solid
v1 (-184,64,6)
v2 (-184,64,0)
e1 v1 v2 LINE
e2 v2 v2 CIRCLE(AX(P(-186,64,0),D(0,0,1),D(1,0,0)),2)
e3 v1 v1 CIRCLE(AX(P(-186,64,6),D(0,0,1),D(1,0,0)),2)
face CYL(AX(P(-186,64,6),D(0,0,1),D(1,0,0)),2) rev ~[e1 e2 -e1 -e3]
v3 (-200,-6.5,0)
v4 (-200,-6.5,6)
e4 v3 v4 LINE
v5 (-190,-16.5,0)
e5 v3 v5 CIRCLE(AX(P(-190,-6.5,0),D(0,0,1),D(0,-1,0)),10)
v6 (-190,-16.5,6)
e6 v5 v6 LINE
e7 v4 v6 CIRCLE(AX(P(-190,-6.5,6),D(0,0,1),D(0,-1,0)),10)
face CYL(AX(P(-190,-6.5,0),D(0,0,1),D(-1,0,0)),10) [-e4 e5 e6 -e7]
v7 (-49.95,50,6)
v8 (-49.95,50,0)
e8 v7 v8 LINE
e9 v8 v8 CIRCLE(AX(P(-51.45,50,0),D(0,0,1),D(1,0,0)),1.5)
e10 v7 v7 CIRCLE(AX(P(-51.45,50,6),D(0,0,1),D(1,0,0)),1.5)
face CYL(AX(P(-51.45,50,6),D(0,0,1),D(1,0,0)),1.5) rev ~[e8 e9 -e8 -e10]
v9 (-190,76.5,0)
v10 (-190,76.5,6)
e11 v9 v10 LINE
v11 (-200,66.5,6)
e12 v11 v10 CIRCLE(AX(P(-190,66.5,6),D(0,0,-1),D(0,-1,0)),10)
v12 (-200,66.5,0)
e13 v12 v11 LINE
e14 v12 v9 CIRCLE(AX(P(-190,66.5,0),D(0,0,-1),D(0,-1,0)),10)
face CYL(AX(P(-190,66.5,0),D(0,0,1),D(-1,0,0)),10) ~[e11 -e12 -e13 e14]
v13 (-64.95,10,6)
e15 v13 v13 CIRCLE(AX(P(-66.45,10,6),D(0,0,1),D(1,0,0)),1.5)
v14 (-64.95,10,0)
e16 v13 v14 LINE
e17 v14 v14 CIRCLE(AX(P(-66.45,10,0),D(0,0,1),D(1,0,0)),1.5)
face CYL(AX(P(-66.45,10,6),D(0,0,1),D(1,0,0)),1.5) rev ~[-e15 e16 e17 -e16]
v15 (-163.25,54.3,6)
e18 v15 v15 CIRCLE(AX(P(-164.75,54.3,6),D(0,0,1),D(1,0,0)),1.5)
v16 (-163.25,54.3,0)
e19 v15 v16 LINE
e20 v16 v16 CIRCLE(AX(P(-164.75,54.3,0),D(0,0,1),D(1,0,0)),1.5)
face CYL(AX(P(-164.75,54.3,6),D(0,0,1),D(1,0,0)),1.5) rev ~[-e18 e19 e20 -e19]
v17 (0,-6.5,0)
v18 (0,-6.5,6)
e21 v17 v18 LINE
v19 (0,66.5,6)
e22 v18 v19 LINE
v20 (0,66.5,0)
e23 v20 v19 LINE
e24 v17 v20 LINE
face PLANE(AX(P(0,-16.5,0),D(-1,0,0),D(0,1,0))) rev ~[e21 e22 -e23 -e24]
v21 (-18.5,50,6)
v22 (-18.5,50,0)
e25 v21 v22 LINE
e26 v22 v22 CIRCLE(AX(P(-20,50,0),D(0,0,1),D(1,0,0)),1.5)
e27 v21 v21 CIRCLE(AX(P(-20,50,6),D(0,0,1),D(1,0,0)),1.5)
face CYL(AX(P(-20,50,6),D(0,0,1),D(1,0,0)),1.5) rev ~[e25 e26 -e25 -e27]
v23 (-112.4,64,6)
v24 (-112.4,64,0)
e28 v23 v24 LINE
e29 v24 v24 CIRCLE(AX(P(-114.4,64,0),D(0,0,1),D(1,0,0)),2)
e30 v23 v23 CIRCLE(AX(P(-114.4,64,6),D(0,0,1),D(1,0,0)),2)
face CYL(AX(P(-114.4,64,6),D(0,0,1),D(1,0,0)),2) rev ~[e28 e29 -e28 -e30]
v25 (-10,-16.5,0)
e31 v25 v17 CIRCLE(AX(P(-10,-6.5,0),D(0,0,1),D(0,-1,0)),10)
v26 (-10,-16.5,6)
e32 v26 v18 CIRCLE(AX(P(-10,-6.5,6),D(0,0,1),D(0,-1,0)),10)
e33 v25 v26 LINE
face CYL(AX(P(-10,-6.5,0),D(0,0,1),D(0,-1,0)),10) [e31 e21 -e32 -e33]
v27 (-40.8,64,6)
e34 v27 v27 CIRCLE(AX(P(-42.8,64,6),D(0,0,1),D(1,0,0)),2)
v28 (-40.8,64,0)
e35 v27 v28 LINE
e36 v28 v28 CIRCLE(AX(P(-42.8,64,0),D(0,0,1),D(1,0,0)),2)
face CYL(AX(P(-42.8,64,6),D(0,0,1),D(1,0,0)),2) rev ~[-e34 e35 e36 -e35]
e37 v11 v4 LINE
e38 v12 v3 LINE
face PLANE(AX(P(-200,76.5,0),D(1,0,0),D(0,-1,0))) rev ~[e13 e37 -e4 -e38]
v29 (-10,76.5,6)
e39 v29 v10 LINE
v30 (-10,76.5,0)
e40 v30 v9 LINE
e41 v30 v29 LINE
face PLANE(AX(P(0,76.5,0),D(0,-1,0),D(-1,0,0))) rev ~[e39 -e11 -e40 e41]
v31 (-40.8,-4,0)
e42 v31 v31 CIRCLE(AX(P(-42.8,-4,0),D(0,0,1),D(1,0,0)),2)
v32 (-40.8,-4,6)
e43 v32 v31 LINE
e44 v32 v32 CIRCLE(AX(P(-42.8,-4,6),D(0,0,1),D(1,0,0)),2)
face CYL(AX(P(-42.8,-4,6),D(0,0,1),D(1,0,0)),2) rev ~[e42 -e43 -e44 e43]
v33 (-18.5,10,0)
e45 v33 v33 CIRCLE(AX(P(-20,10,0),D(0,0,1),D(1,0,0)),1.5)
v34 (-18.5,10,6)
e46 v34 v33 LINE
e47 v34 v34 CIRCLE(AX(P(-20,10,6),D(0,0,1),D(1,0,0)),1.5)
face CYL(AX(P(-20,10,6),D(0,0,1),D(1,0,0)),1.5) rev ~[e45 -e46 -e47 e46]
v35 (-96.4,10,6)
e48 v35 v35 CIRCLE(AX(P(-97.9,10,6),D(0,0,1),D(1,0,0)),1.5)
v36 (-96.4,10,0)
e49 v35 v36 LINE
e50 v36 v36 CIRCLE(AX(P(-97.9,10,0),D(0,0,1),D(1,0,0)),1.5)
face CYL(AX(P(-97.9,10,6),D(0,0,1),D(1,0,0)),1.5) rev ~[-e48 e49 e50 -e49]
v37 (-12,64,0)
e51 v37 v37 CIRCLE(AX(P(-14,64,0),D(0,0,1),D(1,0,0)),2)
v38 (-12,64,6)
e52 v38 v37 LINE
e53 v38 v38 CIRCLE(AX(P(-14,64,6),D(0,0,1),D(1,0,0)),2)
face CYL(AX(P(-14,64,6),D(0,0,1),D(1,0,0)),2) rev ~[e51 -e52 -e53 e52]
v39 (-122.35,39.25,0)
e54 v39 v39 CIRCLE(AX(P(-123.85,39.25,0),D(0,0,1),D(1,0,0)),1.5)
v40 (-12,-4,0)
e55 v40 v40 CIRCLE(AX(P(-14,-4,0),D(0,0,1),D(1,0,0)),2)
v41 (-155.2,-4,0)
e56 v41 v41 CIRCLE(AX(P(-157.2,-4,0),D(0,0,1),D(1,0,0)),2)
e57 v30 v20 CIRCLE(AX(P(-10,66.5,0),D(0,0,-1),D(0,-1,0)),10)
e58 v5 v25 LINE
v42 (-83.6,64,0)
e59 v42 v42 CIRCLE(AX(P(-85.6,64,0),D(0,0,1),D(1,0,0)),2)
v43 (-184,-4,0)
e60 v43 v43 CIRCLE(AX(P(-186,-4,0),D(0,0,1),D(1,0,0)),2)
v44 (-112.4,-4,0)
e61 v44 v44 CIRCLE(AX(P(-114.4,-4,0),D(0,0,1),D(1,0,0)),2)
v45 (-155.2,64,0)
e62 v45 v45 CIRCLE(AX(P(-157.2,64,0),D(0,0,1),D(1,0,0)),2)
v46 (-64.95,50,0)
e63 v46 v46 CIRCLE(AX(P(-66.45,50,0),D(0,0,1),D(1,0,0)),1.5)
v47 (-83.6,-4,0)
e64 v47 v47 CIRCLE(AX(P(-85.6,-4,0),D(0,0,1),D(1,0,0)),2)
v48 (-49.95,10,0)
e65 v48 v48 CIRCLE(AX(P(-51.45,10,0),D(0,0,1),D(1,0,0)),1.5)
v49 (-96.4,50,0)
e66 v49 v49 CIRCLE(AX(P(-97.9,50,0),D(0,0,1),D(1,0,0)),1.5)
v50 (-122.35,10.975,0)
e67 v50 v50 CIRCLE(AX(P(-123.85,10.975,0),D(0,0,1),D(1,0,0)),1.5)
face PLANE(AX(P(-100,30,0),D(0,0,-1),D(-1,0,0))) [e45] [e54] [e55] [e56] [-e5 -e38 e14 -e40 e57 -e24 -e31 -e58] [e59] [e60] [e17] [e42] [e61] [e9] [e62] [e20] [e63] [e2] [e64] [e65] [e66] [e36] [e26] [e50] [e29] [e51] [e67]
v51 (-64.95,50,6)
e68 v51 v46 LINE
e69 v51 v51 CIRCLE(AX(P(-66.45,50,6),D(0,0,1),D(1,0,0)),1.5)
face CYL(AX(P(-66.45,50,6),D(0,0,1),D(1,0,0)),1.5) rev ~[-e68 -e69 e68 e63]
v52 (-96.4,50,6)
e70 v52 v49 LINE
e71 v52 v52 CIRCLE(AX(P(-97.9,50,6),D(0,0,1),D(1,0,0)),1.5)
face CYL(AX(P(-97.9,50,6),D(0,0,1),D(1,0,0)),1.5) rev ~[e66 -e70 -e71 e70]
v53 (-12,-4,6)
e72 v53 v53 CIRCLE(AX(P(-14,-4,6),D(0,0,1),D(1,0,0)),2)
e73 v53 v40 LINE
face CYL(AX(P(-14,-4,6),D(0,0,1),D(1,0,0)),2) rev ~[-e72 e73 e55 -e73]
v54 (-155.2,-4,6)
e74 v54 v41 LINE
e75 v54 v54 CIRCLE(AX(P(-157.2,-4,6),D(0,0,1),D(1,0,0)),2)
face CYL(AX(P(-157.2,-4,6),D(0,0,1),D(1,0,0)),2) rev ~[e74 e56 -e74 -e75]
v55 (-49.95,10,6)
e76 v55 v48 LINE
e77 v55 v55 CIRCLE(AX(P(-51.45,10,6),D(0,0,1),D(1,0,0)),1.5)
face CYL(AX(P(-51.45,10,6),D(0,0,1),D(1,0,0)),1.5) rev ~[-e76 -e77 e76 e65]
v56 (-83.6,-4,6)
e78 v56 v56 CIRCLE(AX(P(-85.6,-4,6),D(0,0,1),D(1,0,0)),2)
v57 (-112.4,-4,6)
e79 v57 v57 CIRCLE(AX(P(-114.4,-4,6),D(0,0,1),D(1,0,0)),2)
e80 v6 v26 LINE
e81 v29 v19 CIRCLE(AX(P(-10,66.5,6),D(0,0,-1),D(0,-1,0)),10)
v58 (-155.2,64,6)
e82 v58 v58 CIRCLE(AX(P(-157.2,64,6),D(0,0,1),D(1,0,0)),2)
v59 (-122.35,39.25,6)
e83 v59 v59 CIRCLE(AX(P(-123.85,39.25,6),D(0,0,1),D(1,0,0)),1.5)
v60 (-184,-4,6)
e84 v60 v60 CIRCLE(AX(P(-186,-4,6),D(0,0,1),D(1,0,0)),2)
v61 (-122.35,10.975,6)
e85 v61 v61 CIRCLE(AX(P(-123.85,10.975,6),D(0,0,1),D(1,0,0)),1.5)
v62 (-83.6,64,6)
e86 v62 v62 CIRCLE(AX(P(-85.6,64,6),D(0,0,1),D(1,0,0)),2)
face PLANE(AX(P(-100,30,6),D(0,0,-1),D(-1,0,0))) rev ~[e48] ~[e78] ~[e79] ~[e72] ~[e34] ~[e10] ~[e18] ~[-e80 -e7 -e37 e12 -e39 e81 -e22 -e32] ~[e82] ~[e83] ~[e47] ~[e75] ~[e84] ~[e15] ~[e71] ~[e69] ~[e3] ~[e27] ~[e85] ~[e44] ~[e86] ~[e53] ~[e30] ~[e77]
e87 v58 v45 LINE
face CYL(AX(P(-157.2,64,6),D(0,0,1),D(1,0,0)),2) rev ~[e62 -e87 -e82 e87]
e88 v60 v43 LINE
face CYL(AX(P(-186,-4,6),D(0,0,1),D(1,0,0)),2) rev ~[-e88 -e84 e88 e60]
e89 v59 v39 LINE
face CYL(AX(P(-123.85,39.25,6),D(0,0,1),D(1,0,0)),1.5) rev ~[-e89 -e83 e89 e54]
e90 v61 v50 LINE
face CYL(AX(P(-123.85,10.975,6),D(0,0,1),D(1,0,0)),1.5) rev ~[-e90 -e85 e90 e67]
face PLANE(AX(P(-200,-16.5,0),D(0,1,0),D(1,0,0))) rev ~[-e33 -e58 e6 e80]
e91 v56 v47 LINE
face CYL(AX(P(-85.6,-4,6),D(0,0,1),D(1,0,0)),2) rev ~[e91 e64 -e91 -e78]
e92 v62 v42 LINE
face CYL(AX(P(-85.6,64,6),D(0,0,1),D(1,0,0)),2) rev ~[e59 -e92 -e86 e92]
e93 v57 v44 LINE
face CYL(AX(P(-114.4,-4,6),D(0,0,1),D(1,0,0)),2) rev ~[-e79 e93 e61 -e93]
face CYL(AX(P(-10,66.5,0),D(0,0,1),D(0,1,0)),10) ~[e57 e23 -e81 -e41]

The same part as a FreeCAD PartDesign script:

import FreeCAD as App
import Part
import Sketcher

V = App.Vector


def edges_at(feature, points):
    """Names of the edges that pass closest to the given points."""
    edges = feature.Shape.Edges
    near = lambda p: min(range(len(edges)), key=lambda i: edges[i].distToShape(Part.Vertex(*p))[0])
    return sorted({f"Edge{near(p) + 1}" for p in points})


def add_polygon(sketch, points):
    """Adds a closed chain of lines whose ends are joined by coincident constraints."""
    first, n = sketch.GeometryCount, len(points)
    for a, b in zip(points, points[1:] + points[:1]):
        sketch.addGeometry(Part.LineSegment(App.Vector(*a, 0), App.Vector(*b, 0)), False)
    for i in range(n):
        sketch.addConstraint(Sketcher.Constraint("Coincident", first + i, 2, first + (i + 1) % n, 1))

doc = App.newDocument("Part")
body = doc.addObject("PartDesign::Body", "Body")

sketch1 = body.newObject("Sketcher::SketchObject", "Sketch")
sketch1.AttachmentSupport = (doc.getObject("XY_Plane"), [""])
sketch1.MapMode = "FlatFace"
add_polygon(sketch1, [(-200, 76), (-200, -16), (0, -16), (0, 76)])
sketch1.addConstraint(Sketcher.Constraint("Vertical", 0))
sketch1.addConstraint(Sketcher.Constraint("Horizontal", 1))
sketch1.addConstraint(Sketcher.Constraint("Vertical", 2))
sketch1.addConstraint(Sketcher.Constraint("Horizontal", 3))
sketch1.addConstraint(Sketcher.Constraint("PointOnObject", 1, 2, -2))
sketch1.addConstraint(Sketcher.Constraint("DistanceX", 1, 1, 1, 2, 200.0))
sketch1.addConstraint(Sketcher.Constraint("DistanceY", 0, 2, 0, 1, 93.0))
sketch1.addConstraint(Sketcher.Constraint("DistanceY", 0, 2, -1, 1, 16.5))
pad1 = body.newObject("PartDesign::Pad", "Pad")
pad1.Profile = sketch1
pad1.Length = 6

sketch2 = body.newObject("Sketcher::SketchObject", "Sketch001")
sketch2.AttachmentSupport = (doc.getObject("XY_Plane"), [""])
sketch2.MapMode = "FlatFace"
sketch2.AttachmentOffset = App.Placement(V(0, 0, 6), App.Rotation())
sketch2.addGeometry(Part.Circle(V(-164.8, 54.3, 0), V(0, 0, 1), 1.5), False)
sketch2.addGeometry(Part.Circle(V(-123.8, 39.2, 0), V(0, 0, 1), 1.5), False)
sketch2.addGeometry(Part.Circle(V(-123.8, 11, 0), V(0, 0, 1), 1.5), False)
sketch2.addGeometry(Part.Circle(V(-97.9, 50, 0), V(0, 0, 1), 1.5), False)
sketch2.addGeometry(Part.Circle(V(-66.5, 50, 0), V(0, 0, 1), 1.5), False)
sketch2.addGeometry(Part.Circle(V(-51.5, 50, 0), V(0, 0, 1), 1.5), False)
sketch2.addGeometry(Part.Circle(V(-20, 50, 0), V(0, 0, 1), 1.5), False)
sketch2.addGeometry(Part.Circle(V(-20, 10, 0), V(0, 0, 1), 1.5), False)
sketch2.addGeometry(Part.Circle(V(-51.5, 10, 0), V(0, 0, 1), 1.5), False)
sketch2.addGeometry(Part.Circle(V(-66.5, 10, 0), V(0, 0, 1), 1.5), False)
sketch2.addGeometry(Part.Circle(V(-97.9, 10, 0), V(0, 0, 1), 1.5), False)
sketch2.addConstraint(Sketcher.Constraint("Equal", 0, 1))
sketch2.addConstraint(Sketcher.Constraint("Equal", 1, 2))
sketch2.addConstraint(Sketcher.Constraint("Equal", 2, 3))
sketch2.addConstraint(Sketcher.Constraint("Equal", 3, 4))
sketch2.addConstraint(Sketcher.Constraint("Equal", 4, 5))
sketch2.addConstraint(Sketcher.Constraint("Equal", 5, 6))
sketch2.addConstraint(Sketcher.Constraint("Equal", 6, 7))
sketch2.addConstraint(Sketcher.Constraint("Equal", 7, 8))
sketch2.addConstraint(Sketcher.Constraint("Equal", 8, 9))
sketch2.addConstraint(Sketcher.Constraint("Equal", 9, 10))
sketch2.addConstraint(Sketcher.Constraint("Horizontal", 3, 3, 4, 3))
sketch2.addConstraint(Sketcher.Constraint("Horizontal", 4, 3, 5, 3))
sketch2.addConstraint(Sketcher.Constraint("Horizontal", 5, 3, 6, 3))
sketch2.addConstraint(Sketcher.Constraint("Horizontal", 7, 3, 8, 3))
sketch2.addConstraint(Sketcher.Constraint("Horizontal", 8, 3, 9, 3))
sketch2.addConstraint(Sketcher.Constraint("Horizontal", 9, 3, 10, 3))
sketch2.addConstraint(Sketcher.Constraint("Vertical", 1, 3, 2, 3))
sketch2.addConstraint(Sketcher.Constraint("Vertical", 6, 3, 7, 3))
sketch2.addConstraint(Sketcher.Constraint("Vertical", 5, 3, 8, 3))
sketch2.addConstraint(Sketcher.Constraint("Vertical", 4, 3, 9, 3))
sketch2.addConstraint(Sketcher.Constraint("Vertical", 3, 3, 10, 3))
sketch2.addConstraint(Sketcher.Constraint("Diameter", 0, 3.0))
sketch2.addConstraint(Sketcher.Constraint("DistanceY", -1, 1, 3, 3, 50.0))
sketch2.addConstraint(Sketcher.Constraint("DistanceX", 6, 3, -1, 1, 20.0))
sketch2.addConstraint(Sketcher.Constraint("DistanceY", -1, 1, 7, 3, 10.0))
sketch2.addConstraint(Sketcher.Constraint("DistanceX", 4, 3, 5, 3, 15.0))
sketch2.addConstraint(Sketcher.Constraint("DistanceY", -1, 1, 0, 3, 54.3))
sketch2.addConstraint(Sketcher.Constraint("DistanceX", 3, 3, -1, 1, 97.9))
sketch2.addConstraint(Sketcher.Constraint("DistanceX", 0, 3, 1, 3, 40.9))
sketch2.addConstraint(Sketcher.Constraint("DistanceX", 1, 3, 4, 3, 57.4))
sketch2.addConstraint(Sketcher.Constraint("DistanceX", 0, 3, -1, 1, 164.75))
sketch2.addConstraint(Sketcher.Constraint("DistanceY", -1, 1, 1, 3, 39.25))
sketch2.addConstraint(Sketcher.Constraint("DistanceY", -1, 1, 2, 3, 10.975))
pocket1 = body.newObject("PartDesign::Pocket", "Pocket")
pocket1.Profile = sketch2
pocket1.Length = 6

sketch3 = body.newObject("Sketcher::SketchObject", "Sketch002")
sketch3.AttachmentSupport = (doc.getObject("XY_Plane"), [""])
sketch3.MapMode = "FlatFace"
sketch3.AttachmentOffset = App.Placement(V(0, 0, 6), App.Rotation())
sketch3.addGeometry(Part.Circle(V(-14, 64, 0), V(0, 0, 1), 2), False)
sketch3.addConstraint(Sketcher.Constraint("Diameter", 0, 4.0))
sketch3.addConstraint(Sketcher.Constraint("DistanceX", 0, 3, -1, 1, 14.0))
sketch3.addConstraint(Sketcher.Constraint("DistanceY", -1, 1, 0, 3, 64.0))
pocket2 = body.newObject("PartDesign::Pocket", "Pocket001")
pocket2.Profile = sketch3
pocket2.Type = "UpToFirst"

sketch4 = body.newObject("Sketcher::SketchObject", "Sketch003")
sketch4.AttachmentSupport = (doc.getObject("XY_Plane"), [""])
sketch4.MapMode = "FlatFace"
sketch4.AttachmentOffset = App.Placement(V(0, 0, 6), App.Rotation())
sketch4.addGeometry(Part.Circle(V(-42.8, 64, 0), V(0, 0, 1), 2), False)
sketch4.addConstraint(Sketcher.Constraint("Diameter", 0, 4.0))
sketch4.addConstraint(Sketcher.Constraint("DistanceY", -1, 1, 0, 3, 64.0))
sketch4.addConstraint(Sketcher.Constraint("DistanceX", 0, 3, -1, 1, 42.8))
pocket3 = body.newObject("PartDesign::Pocket", "Pocket002")
pocket3.Profile = sketch4
pocket3.Type = "UpToFirst"

sketch5 = body.newObject("Sketcher::SketchObject", "Sketch004")
sketch5.AttachmentSupport = (doc.getObject("XY_Plane"), [""])
sketch5.MapMode = "FlatFace"
sketch5.AttachmentOffset = App.Placement(V(0, 0, 6), App.Rotation())
sketch5.addGeometry(Part.Circle(V(-85.6, 64, 0), V(0, 0, 1), 2), False)
sketch5.addConstraint(Sketcher.Constraint("Diameter", 0, 4.0))
sketch5.addConstraint(Sketcher.Constraint("DistanceY", -1, 1, 0, 3, 64.0))
sketch5.addConstraint(Sketcher.Constraint("DistanceX", 0, 3, -1, 1, 85.6))
pocket4 = body.newObject("PartDesign::Pocket", "Pocket003")
pocket4.Profile = sketch5
pocket4.Type = "UpToFirst"

sketch6 = body.newObject("Sketcher::SketchObject", "Sketch005")
sketch6.AttachmentSupport = (doc.getObject("XY_Plane"), [""])
sketch6.MapMode = "FlatFace"
sketch6.AttachmentOffset = App.Placement(V(0, 0, 6), App.Rotation())
sketch6.addGeometry(Part.Circle(V(-114.4, 64, 0), V(0, 0, 1), 2), False)
sketch6.addConstraint(Sketcher.Constraint("Diameter", 0, 4.0))
sketch6.addConstraint(Sketcher.Constraint("DistanceY", -1, 1, 0, 3, 64.0))
sketch6.addConstraint(Sketcher.Constraint("DistanceX", 0, 3, -1, 1, 114.4))
pocket5 = body.newObject("PartDesign::Pocket", "Pocket004")
pocket5.Profile = sketch6
pocket5.Type = "UpToFirst"

sketch7 = body.newObject("Sketcher::SketchObject", "Sketch006")
sketch7.AttachmentSupport = (doc.getObject("XY_Plane"), [""])
sketch7.MapMode = "FlatFace"
sketch7.AttachmentOffset = App.Placement(V(0, 0, 6), App.Rotation())
sketch7.addGeometry(Part.Circle(V(-157.2, 64, 0), V(0, 0, 1), 2), False)
sketch7.addConstraint(Sketcher.Constraint("Diameter", 0, 4.0))
sketch7.addConstraint(Sketcher.Constraint("DistanceY", -1, 1, 0, 3, 64.0))
sketch7.addConstraint(Sketcher.Constraint("DistanceX", 0, 3, -1, 1, 157.2))
pocket6 = body.newObject("PartDesign::Pocket", "Pocket005")
pocket6.Profile = sketch7
pocket6.Type = "UpToFirst"

sketch8 = body.newObject("Sketcher::SketchObject", "Sketch007")
sketch8.AttachmentSupport = (doc.getObject("XY_Plane"), [""])
sketch8.MapMode = "FlatFace"
sketch8.AttachmentOffset = App.Placement(V(0, 0, 6), App.Rotation())
sketch8.addGeometry(Part.Circle(V(-186, 64, 0), V(0, 0, 1), 2), False)
sketch8.addConstraint(Sketcher.Constraint("Diameter", 0, 4.0))
sketch8.addConstraint(Sketcher.Constraint("DistanceX", 0, 3, -1, 1, 186.0))
sketch8.addConstraint(Sketcher.Constraint("DistanceY", -1, 1, 0, 3, 64.0))
pocket7 = body.newObject("PartDesign::Pocket", "Pocket006")
pocket7.Profile = sketch8
pocket7.Type = "UpToFirst"

sketch9 = body.newObject("Sketcher::SketchObject", "Sketch008")
sketch9.AttachmentSupport = (doc.getObject("XY_Plane"), [""])
sketch9.MapMode = "FlatFace"
sketch9.AttachmentOffset = App.Placement(V(0, 0, 6), App.Rotation())
sketch9.addGeometry(Part.Circle(V(-14, -4, 0), V(0, 0, 1), 2), False)
sketch9.addConstraint(Sketcher.Constraint("Diameter", 0, 4.0))
sketch9.addConstraint(Sketcher.Constraint("DistanceX", 0, 3, -1, 1, 14.0))
sketch9.addConstraint(Sketcher.Constraint("DistanceY", 0, 3, -1, 1, 4.0))
pocket8 = body.newObject("PartDesign::Pocket", "Pocket007")
pocket8.Profile = sketch9
pocket8.Type = "UpToFirst"

sketch10 = body.newObject("Sketcher::SketchObject", "Sketch009")
sketch10.AttachmentSupport = (doc.getObject("XY_Plane"), [""])
sketch10.MapMode = "FlatFace"
sketch10.AttachmentOffset = App.Placement(V(0, 0, 6), App.Rotation())
sketch10.addGeometry(Part.Circle(V(-42.8, -4, 0), V(0, 0, 1), 2), False)
sketch10.addConstraint(Sketcher.Constraint("Diameter", 0, 4.0))
sketch10.addConstraint(Sketcher.Constraint("DistanceY", 0, 3, -1, 1, 4.0))
sketch10.addConstraint(Sketcher.Constraint("DistanceX", 0, 3, -1, 1, 42.8))
pocket9 = body.newObject("PartDesign::Pocket", "Pocket008")
pocket9.Profile = sketch10
pocket9.Type = "UpToFirst"

sketch11 = body.newObject("Sketcher::SketchObject", "Sketch010")
sketch11.AttachmentSupport = (doc.getObject("XY_Plane"), [""])
sketch11.MapMode = "FlatFace"
sketch11.AttachmentOffset = App.Placement(V(0, 0, 6), App.Rotation())
sketch11.addGeometry(Part.Circle(V(-85.6, -4, 0), V(0, 0, 1), 2), False)
sketch11.addConstraint(Sketcher.Constraint("Diameter", 0, 4.0))
sketch11.addConstraint(Sketcher.Constraint("DistanceY", 0, 3, -1, 1, 4.0))
sketch11.addConstraint(Sketcher.Constraint("DistanceX", 0, 3, -1, 1, 85.6))
pocket10 = body.newObject("PartDesign::Pocket", "Pocket009")
pocket10.Profile = sketch11
pocket10.Type = "UpToFirst"

sketch12 = body.newObject("Sketcher::SketchObject", "Sketch011")
sketch12.AttachmentSupport = (doc.getObject("XY_Plane"), [""])
sketch12.MapMode = "FlatFace"
sketch12.AttachmentOffset = App.Placement(V(0, 0, 6), App.Rotation())
sketch12.addGeometry(Part.Circle(V(-114.4, -4, 0), V(0, 0, 1), 2), False)
sketch12.addConstraint(Sketcher.Constraint("Diameter", 0, 4.0))
sketch12.addConstraint(Sketcher.Constraint("DistanceY", 0, 3, -1, 1, 4.0))
sketch12.addConstraint(Sketcher.Constraint("DistanceX", 0, 3, -1, 1, 114.4))
pocket11 = body.newObject("PartDesign::Pocket", "Pocket010")
pocket11.Profile = sketch12
pocket11.Type = "UpToFirst"

sketch13 = body.newObject("Sketcher::SketchObject", "Sketch012")
sketch13.AttachmentSupport = (doc.getObject("XY_Plane"), [""])
sketch13.MapMode = "FlatFace"
sketch13.AttachmentOffset = App.Placement(V(0, 0, 6), App.Rotation())
sketch13.addGeometry(Part.Circle(V(-157.2, -4, 0), V(0, 0, 1), 2), False)
sketch13.addConstraint(Sketcher.Constraint("Diameter", 0, 4.0))
sketch13.addConstraint(Sketcher.Constraint("DistanceY", 0, 3, -1, 1, 4.0))
sketch13.addConstraint(Sketcher.Constraint("DistanceX", 0, 3, -1, 1, 157.2))
pocket12 = body.newObject("PartDesign::Pocket", "Pocket011")
pocket12.Profile = sketch13
pocket12.Type = "UpToFirst"

sketch14 = body.newObject("Sketcher::SketchObject", "Sketch013")
sketch14.AttachmentSupport = (doc.getObject("XY_Plane"), [""])
sketch14.MapMode = "FlatFace"
sketch14.AttachmentOffset = App.Placement(V(0, 0, 6), App.Rotation())
sketch14.addGeometry(Part.Circle(V(-186, -4, 0), V(0, 0, 1), 2), False)
sketch14.addConstraint(Sketcher.Constraint("Diameter", 0, 4.0))
sketch14.addConstraint(Sketcher.Constraint("DistanceX", 0, 3, -1, 1, 186.0))
sketch14.addConstraint(Sketcher.Constraint("DistanceY", 0, 3, -1, 1, 4.0))
pocket13 = body.newObject("PartDesign::Pocket", "Pocket012")
pocket13.Profile = sketch14
pocket13.Type = "UpToFirst"
doc.recompute()

fillet = body.newObject("PartDesign::Fillet", "Fillet")
fillet.Base = (pocket13, edges_at(pocket13, [
    (0, -16.5, 3),
    (-200, -16.5, 3),
    (-200, 76.5, 3),
    (0, 76.5, 3),
]))
fillet.Radius = 10

doc.recompute()
